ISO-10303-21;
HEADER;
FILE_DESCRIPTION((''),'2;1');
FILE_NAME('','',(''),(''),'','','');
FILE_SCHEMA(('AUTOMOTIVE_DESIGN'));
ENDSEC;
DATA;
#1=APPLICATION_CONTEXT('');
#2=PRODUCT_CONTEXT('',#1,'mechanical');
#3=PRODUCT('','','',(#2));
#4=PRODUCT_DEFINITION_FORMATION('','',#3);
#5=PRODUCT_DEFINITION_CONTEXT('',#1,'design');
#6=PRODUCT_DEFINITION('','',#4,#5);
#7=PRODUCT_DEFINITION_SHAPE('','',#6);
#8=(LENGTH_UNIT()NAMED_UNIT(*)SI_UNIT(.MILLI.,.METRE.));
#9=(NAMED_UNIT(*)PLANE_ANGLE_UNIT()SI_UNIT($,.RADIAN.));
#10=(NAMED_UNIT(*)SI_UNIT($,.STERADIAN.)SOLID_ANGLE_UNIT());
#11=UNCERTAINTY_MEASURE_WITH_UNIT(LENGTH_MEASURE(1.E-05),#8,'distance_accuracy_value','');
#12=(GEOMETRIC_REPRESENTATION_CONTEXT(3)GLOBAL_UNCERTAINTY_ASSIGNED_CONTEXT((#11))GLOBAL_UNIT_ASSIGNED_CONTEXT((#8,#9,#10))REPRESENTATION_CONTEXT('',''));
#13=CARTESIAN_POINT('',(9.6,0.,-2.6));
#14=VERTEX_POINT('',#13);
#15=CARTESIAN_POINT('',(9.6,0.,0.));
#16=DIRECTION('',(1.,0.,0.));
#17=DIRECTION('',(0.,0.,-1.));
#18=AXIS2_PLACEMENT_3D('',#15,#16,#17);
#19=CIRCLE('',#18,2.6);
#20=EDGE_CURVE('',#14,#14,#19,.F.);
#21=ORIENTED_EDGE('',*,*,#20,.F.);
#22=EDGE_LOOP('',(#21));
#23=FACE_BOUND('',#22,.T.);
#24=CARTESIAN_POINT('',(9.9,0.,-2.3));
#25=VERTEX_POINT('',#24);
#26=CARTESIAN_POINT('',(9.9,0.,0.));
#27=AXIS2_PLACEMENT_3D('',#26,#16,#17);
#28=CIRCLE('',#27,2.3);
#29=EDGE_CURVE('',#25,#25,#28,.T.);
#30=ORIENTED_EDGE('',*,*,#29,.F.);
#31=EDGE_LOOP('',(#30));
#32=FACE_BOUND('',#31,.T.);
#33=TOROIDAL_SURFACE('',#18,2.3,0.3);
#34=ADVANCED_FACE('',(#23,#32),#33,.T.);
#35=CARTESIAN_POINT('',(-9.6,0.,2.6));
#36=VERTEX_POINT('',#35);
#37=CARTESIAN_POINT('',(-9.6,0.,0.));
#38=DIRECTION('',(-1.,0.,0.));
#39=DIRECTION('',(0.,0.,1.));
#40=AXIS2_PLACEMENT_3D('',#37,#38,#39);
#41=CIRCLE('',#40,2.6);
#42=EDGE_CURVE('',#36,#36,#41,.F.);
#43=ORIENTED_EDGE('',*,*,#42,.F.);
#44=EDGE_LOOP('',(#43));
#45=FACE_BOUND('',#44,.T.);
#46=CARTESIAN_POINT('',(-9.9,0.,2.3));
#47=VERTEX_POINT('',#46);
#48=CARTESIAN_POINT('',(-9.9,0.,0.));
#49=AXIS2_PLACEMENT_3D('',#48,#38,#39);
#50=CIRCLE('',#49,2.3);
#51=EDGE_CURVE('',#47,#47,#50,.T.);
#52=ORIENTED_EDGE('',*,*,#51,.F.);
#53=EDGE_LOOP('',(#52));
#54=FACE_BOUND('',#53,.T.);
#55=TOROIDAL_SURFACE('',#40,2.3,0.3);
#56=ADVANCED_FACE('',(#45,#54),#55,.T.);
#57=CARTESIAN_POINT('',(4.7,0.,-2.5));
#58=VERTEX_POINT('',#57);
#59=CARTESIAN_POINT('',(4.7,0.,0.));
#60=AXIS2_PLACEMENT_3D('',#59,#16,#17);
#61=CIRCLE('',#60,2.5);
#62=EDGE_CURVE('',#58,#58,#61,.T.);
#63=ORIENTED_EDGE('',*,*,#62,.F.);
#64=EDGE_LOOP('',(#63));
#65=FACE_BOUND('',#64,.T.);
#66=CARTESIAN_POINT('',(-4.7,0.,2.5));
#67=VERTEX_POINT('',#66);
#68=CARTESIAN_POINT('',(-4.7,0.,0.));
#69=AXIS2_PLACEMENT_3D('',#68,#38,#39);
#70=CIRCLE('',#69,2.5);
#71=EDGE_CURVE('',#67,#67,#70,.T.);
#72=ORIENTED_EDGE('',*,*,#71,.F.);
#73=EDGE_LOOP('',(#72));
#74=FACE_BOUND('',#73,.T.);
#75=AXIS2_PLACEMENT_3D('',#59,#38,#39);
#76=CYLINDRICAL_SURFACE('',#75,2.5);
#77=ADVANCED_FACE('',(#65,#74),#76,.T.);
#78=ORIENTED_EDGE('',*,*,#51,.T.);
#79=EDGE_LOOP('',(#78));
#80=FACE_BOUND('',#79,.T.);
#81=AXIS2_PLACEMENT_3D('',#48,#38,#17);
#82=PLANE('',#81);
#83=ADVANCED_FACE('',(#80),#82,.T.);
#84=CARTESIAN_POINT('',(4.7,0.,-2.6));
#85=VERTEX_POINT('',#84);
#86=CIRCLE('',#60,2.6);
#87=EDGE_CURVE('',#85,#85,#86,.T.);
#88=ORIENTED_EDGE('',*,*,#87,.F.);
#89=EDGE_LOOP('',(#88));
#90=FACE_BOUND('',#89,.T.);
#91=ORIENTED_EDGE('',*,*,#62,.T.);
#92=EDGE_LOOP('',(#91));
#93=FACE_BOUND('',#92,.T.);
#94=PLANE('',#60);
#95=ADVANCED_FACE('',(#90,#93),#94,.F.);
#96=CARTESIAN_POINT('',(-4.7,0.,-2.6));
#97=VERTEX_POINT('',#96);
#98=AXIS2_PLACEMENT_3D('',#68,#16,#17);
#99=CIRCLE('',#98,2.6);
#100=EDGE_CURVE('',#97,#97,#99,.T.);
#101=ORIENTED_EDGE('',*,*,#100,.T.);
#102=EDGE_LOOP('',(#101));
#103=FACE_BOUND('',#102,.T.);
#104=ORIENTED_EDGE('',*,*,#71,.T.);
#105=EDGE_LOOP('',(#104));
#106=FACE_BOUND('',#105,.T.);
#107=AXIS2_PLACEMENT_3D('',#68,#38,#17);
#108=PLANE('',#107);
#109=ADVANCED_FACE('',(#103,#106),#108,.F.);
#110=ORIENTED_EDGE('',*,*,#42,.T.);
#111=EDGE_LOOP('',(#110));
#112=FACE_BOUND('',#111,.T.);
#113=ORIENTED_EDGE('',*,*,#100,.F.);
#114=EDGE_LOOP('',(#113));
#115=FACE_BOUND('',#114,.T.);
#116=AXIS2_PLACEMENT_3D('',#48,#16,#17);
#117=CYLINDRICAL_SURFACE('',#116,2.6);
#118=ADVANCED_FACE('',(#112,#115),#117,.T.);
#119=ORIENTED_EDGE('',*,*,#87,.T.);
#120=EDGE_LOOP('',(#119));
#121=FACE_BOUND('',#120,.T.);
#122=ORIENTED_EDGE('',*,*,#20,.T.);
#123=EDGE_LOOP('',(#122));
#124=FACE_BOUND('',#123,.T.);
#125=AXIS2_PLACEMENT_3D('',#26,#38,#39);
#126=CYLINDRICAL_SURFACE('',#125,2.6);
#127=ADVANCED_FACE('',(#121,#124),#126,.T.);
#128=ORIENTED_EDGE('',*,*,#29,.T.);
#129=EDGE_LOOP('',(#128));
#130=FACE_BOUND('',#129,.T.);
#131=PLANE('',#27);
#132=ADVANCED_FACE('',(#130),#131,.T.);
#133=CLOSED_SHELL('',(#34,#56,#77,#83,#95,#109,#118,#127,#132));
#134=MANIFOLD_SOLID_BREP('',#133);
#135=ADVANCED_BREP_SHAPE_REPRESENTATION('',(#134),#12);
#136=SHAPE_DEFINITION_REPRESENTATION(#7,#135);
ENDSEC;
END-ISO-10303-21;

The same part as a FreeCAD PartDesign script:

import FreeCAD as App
import Part
import Sketcher

V = App.Vector
Q = App.Units.Quantity


def edges_at(feature, points):
    """Names of the edges that pass closest to the given points."""
    edges = feature.Shape.Edges
    near = lambda p: min(range(len(edges)), key=lambda i: edges[i].distToShape(Part.Vertex(*p))[0])
    return sorted({f"Edge{near(p) + 1}" for p in points})

doc = App.newDocument("Part")
body = doc.addObject("PartDesign::Body", "Body")

# Sketch on YZ plane
sketch1 = body.newObject("Sketcher::SketchObject", "Sketch")
sketch1.AttachmentSupport = (doc.getObject("YZ_Plane"), [""])
sketch1.MapMode = "FlatFace"
sketch1.addGeometry(Part.Circle(V(0, 0, 0), V(0, 0, 1), 2.5), False)
sketch1.addConstraint(Sketcher.Constraint("Coincident", 0, 3, -1, 1))
sketch1.addConstraint(Sketcher.Constraint("Diameter", 0, Q("5 mm")))
pad1 = body.newObject("PartDesign::Pad", "Pad")
pad1.Profile = sketch1
pad1.Length = 9.4
pad1.Midplane = True

# Sketch on YZ plane
sketch2 = body.newObject("Sketcher::SketchObject", "Sketch001")
sketch2.AttachmentSupport = (doc.getObject("YZ_Plane"), [""])
sketch2.MapMode = "FlatFace"
sketch2.AttachmentOffset = App.Placement(V(0, 0, 4.7), App.Rotation())
sketch2.addGeometry(Part.Circle(V(0, 0, 0), V(0, 0, 1), 2.6), False)
sketch2.addConstraint(Sketcher.Constraint("Coincident", 0, 3, -1, 1))
sketch2.addConstraint(Sketcher.Constraint("Diameter", 0, Q("5.2 mm")))
pad2 = body.newObject("PartDesign::Pad", "Pad001")
pad2.Profile = sketch2
pad2.Length = 5.2
doc.recompute()

fillet = body.newObject("PartDesign::Fillet", "Fillet")
fillet.Base = (pad2, edges_at(pad2, [(9.9, 0, 2.6)]))
fillet.Radius = 0.3
doc.recompute()

mirrored = body.newObject("PartDesign::Mirrored", "Mirrored")
mirrored.Originals = [pad2]
mirrored.MirrorPlane = (doc.getObject("YZ_Plane"), [""])
body.Tip = mirrored
doc.recompute()

fillet2 = body.newObject("PartDesign::Fillet", "Fillet001")
fillet2.Base = (mirrored, edges_at(mirrored, [(-9.9, 0, 2.6)]))
fillet2.Radius = 0.3

doc.recompute()
